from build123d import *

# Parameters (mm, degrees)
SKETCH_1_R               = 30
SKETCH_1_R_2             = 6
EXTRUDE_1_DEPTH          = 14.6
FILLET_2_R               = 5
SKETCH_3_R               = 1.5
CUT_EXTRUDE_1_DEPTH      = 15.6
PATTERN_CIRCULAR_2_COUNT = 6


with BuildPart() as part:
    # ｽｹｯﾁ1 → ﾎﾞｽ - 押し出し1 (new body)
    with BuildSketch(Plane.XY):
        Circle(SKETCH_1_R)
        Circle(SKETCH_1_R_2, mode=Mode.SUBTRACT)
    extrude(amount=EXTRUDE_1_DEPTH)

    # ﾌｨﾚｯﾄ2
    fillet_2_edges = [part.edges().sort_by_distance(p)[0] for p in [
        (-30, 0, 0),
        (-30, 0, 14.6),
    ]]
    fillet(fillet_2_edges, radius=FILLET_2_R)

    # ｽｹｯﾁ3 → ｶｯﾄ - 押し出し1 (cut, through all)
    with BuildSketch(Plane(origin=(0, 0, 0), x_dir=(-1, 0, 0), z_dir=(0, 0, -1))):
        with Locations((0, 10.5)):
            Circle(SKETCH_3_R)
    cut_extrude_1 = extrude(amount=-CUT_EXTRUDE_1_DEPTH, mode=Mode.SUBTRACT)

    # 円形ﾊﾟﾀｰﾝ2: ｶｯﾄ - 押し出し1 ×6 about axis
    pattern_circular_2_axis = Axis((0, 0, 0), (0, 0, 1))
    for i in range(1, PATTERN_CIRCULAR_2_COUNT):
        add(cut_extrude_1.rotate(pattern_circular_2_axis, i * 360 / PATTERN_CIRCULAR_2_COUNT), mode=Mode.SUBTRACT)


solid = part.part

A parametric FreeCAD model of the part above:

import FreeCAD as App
import Part
import Sketcher


def edges_at(feature, points):
    """Names of the edges that pass closest to the given points."""
    edges = feature.Shape.Edges
    near = lambda p: min(range(len(edges)), key=lambda i: edges[i].distToShape(Part.Vertex(*p))[0])
    return sorted({f"Edge{near(p) + 1}" for p in points})

doc = App.newDocument("Part")
body = doc.addObject("PartDesign::Body", "Body")

# Sketch on XY plane
sketch1 = body.newObject("Sketcher::SketchObject", "Sketch")
sketch1.AttachmentSupport = (doc.getObject("XY_Plane"), [""])
sketch1.MapMode = "FlatFace"
sketch1.addGeometry(Part.Circle(App.Vector(0, 0, 0), App.Vector(0, 0, 1), 30), False)
sketch1.addGeometry(Part.Circle(App.Vector(0, 0, 0), App.Vector(0, 0, 1), 6), False)
sketch1.addConstraint(Sketcher.Constraint("Coincident", 0, 3, -1, 1))
sketch1.addConstraint(Sketcher.Constraint("Coincident", 1, 3, -1, 1))
sketch1.addConstraint(Sketcher.Constraint("Diameter", 0, 60.0))
sketch1.addConstraint(Sketcher.Constraint("Diameter", 1, 12.0))
pad1 = body.newObject("PartDesign::Pad", "Pad")
pad1.Profile = sketch1
pad1.Length = 14.6
doc.recompute()

fillet = body.newObject("PartDesign::Fillet", "Fillet")
fillet.Base = (pad1, edges_at(pad1, [(-30, 0, 0), (-30, 0, 14.6)]))
fillet.Radius = 5

# Sketch on XY plane
sketch2 = body.newObject("Sketcher::SketchObject", "Sketch001")
sketch2.AttachmentSupport = (doc.getObject("XY_Plane"), [""])
sketch2.MapMode = "FlatFace"
sketch2.addGeometry(Part.Circle(App.Vector(0, 10.5, 0), App.Vector(0, 0, 1), 1.5), False)
sketch2.addConstraint(Sketcher.Constraint("PointOnObject", 0, 3, -2))
sketch2.addConstraint(Sketcher.Constraint("Diameter", 0, 3.0))
sketch2.addConstraint(Sketcher.Constraint("DistanceY", -1, 1, 0, 3, 10.5))
pocket1 = body.newObject("PartDesign::Pocket", "Pocket")
pocket1.Profile = sketch2
pocket1.Type = "ThroughAll"
pocket1.Reversed = True
doc.recompute()

polarpattern = body.newObject("PartDesign::PolarPattern", "PolarPattern")
polarpattern.Originals = [pocket1]
polarpattern.Axis = (doc.getObject("Z_Axis"), [""])
polarpattern.Angle = 360
polarpattern.Occurrences = 6
body.Tip = polarpattern

doc.recompute()
